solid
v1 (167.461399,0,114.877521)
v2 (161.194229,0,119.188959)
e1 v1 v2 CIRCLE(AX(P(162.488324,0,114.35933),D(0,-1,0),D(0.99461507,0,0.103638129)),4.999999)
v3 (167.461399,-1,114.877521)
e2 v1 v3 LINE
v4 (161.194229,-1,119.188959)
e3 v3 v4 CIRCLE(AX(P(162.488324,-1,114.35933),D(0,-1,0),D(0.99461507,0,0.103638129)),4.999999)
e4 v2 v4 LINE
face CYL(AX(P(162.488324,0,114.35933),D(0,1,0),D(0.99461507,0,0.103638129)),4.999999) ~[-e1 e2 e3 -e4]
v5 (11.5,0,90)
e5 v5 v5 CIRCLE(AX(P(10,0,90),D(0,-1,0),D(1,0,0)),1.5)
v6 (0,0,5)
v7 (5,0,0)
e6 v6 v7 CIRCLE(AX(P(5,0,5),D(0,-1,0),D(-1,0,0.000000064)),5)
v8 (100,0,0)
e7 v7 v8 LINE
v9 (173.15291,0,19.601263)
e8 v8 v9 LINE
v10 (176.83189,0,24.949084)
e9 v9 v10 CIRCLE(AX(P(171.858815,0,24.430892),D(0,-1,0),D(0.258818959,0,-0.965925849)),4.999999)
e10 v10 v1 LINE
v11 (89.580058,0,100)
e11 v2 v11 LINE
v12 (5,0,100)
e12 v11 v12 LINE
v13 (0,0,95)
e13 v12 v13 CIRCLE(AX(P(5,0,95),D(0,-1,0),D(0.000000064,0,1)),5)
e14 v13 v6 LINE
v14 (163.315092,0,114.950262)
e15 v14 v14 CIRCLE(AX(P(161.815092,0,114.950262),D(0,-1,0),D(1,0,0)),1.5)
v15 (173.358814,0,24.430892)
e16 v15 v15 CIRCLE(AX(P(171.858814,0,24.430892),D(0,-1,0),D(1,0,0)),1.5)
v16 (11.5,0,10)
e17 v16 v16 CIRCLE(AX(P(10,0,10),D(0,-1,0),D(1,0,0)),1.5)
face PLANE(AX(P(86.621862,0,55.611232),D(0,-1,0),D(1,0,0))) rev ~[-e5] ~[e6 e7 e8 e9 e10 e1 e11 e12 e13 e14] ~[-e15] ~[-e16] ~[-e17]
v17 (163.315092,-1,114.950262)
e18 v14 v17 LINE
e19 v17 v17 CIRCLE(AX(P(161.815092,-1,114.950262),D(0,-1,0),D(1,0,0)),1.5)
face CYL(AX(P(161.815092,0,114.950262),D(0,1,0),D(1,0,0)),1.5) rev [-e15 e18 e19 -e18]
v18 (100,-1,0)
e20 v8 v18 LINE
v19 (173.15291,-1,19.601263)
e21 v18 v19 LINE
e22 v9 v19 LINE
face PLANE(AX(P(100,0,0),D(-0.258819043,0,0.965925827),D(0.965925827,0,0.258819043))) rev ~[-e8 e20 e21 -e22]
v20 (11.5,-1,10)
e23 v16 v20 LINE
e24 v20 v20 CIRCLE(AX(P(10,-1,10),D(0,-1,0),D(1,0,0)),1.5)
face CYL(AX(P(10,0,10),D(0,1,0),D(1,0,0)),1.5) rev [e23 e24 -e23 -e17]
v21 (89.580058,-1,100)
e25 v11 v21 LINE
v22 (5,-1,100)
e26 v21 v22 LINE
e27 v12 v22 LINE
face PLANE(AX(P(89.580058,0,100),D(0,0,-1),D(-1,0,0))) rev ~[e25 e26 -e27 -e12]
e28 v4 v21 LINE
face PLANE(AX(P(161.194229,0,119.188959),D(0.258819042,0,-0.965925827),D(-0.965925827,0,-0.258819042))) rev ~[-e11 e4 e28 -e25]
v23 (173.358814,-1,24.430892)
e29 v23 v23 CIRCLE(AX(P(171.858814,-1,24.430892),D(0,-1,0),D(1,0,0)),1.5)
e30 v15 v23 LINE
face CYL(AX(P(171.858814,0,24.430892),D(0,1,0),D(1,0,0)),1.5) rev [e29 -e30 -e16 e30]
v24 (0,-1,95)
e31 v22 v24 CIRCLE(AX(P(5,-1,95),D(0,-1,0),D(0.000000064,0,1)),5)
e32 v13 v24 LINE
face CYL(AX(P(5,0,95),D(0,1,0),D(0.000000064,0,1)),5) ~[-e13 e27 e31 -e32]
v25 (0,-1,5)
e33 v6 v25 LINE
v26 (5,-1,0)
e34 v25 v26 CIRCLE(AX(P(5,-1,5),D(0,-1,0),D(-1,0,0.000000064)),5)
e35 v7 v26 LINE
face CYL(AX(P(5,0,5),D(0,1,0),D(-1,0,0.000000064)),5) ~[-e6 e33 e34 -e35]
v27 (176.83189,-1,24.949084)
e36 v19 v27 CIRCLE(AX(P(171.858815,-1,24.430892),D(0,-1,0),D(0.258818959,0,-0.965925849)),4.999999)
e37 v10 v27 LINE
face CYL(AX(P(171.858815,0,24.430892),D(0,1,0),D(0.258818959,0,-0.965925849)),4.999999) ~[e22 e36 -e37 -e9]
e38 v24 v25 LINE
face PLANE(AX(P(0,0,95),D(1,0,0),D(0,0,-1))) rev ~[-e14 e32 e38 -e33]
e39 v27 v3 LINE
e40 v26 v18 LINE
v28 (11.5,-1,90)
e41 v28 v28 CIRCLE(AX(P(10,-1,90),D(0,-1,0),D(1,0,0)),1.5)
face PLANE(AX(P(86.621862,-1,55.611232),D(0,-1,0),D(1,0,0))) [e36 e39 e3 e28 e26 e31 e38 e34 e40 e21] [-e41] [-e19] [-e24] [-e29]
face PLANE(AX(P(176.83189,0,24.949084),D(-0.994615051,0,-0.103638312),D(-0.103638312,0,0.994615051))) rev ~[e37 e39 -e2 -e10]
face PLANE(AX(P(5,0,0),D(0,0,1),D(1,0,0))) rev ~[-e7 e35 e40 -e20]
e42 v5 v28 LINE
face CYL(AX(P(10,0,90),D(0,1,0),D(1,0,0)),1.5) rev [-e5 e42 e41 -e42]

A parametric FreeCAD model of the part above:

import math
import FreeCAD as App
import Part
import Sketcher

V = App.Vector
Q = App.Units.Quantity

doc = App.newDocument("Part")
params = doc.addObject("Spreadsheet::Sheet", "Params")
for row, (alias, value) in enumerate([
    ("sketch1_diameter", "3 mm"),
    ("sketch1_radius", "5 mm"),
    ("sketch1_width", "95 mm"),
    ("sketch1_height", "90 mm"),
    ("pad1_length", "1 mm"),
], start=1):
    params.set(f"A{row}", alias)
    params.set(f"B{row}", "=" + value)
    params.setAlias(f"B{row}", alias)

body = doc.addObject("PartDesign::Body", "Body")

# Sketch on XZ plane
sketch1 = body.newObject("Sketcher::SketchObject", "Sketch")
sketch1.AttachmentSupport = (doc.getObject("XZ_Plane"), [""])
sketch1.MapMode = "FlatFace"
sketch1.addGeometry([
    Part.LineSegment(V(0, 95, 0), V(0, 5, 0)),  # 0
    Part.ArcOfCircle(Part.Circle(V(5, 5, 0), V(0, 0, 1), 5), math.radians(180), math.radians(270)),  # 1
    Part.LineSegment(V(5, 0, 0), V(100, 0, 0)),  # 2
    Part.LineSegment(V(100, 0, 0), V(173.2, 19.6, 0)),  # 3
    Part.ArcOfCircle(Part.Circle(V(171.9, 24.4, 0), V(0, 0, 1), 5), math.radians(-75), math.radians(6)),  # 4
    Part.LineSegment(V(176.8, 24.9, 0), V(167.5, 114.9, 0)),  # 5
    Part.ArcOfCircle(Part.Circle(V(162.5, 114.4, 0), V(0, 0, 1), 5), math.radians(6), math.radians(105)),  # 6
    Part.LineSegment(V(161.2, 119.2, 0), V(89.6, 100, 0)),  # 7
    Part.LineSegment(V(89.6, 100, 0), V(5, 100, 0)),  # 8
    Part.ArcOfCircle(Part.Circle(V(5, 95, 0), V(0, 0, 1), 5), math.radians(90), math.radians(180)),  # 9
    Part.Circle(V(10, 10, 0), V(0, 0, 1), 1.5),  # 10
    Part.Circle(V(171.9, 24.4, 0), V(0, 0, 1), 1.5),  # 11
    Part.Circle(V(10, 90, 0), V(0, 0, 1), 1.5),  # 12
    Part.Circle(V(161.8, 115, 0), V(0, 0, 1), 1.5),  # 13
], False)
sketch1.addConstraint([
    Sketcher.Constraint("Tangent", 0, 2, 1, 1),
    Sketcher.Constraint("Tangent", 1, 2, 2, 1),
    Sketcher.Constraint("Coincident", 2, 2, 3, 1),
    Sketcher.Constraint("Tangent", 3, 2, 4, 1),
    Sketcher.Constraint("Tangent", 4, 2, 5, 1),
    Sketcher.Constraint("Tangent", 5, 2, 6, 1),
    Sketcher.Constraint("Tangent", 6, 2, 7, 1),
    Sketcher.Constraint("Coincident", 7, 2, 8, 1),
    Sketcher.Constraint("Tangent", 8, 2, 9, 1),
    Sketcher.Constraint("Tangent", 9, 2, 0, 1),
    Sketcher.Constraint("Vertical", 0),
    Sketcher.Constraint("Horizontal", 2),
    Sketcher.Constraint("Horizontal", 8),
    Sketcher.Constraint("Coincident", 11, 3, 4, 3),
    Sketcher.Constraint("Equal", 1, 4),
    Sketcher.Constraint("Equal", 4, 6),
    Sketcher.Constraint("Equal", 6, 9),
    Sketcher.Constraint("Equal", 10, 11),
    Sketcher.Constraint("Equal", 11, 12),
    Sketcher.Constraint("Equal", 12, 13),
    Sketcher.Constraint("PointOnObject", 0, 2, -2),
    Sketcher.Constraint("PointOnObject", 1, 2, -1),
    Sketcher.Constraint("Parallel", 3, 7),
    Sketcher.Constraint("Vertical", 10, 3, 12, 3),
    Sketcher.Constraint("Diameter", 10, Q("3 mm")),
    Sketcher.Constraint("Radius", 1, Q("5 mm")),
    Sketcher.Constraint("DistanceX", 2, 1, 2, 2, Q("95 mm")),
    Sketcher.Constraint("DistanceY", 0, 2, 0, 1, Q("90 mm")),
    Sketcher.Constraint("Angle", 3, Q("15 deg")),
    Sketcher.Constraint("DistanceX", -1, 1, 10, 3, Q("10 mm")),
    Sketcher.Constraint("DistanceY", -1, 1, 10, 3, Q("10 mm")),
    Sketcher.Constraint("DistanceY", -1, 1, 12, 3, Q("90 mm")),
    Sketcher.Constraint("DistanceY", 3, 2, 13, 3, Q("95.348999 mm")),
    Sketcher.Constraint("DistanceX", -1, 1, 5, 2, Q("167.461399 mm")),
    Sketcher.Constraint("Distance", 5, Q("90.415319 mm")),
    Sketcher.Constraint("DistanceX", 8, 2, 8, 1, Q("84.580058 mm")),
    Sketcher.Constraint("DistanceX", -1, 1, 13, 3, Q("161.815092 mm")),
])
sketch1.setExpression("Constraints[24]", "Params.sketch1_diameter")
sketch1.setExpression("Constraints[25]", "Params.sketch1_radius")
sketch1.setExpression("Constraints[26]", "Params.sketch1_width")
sketch1.setExpression("Constraints[27]", "Params.sketch1_height")
pad1 = body.newObject("PartDesign::Pad", "Pad")
pad1.Profile = sketch1
pad1.setExpression("Length", "Params.pad1_length")

doc.recompute()
